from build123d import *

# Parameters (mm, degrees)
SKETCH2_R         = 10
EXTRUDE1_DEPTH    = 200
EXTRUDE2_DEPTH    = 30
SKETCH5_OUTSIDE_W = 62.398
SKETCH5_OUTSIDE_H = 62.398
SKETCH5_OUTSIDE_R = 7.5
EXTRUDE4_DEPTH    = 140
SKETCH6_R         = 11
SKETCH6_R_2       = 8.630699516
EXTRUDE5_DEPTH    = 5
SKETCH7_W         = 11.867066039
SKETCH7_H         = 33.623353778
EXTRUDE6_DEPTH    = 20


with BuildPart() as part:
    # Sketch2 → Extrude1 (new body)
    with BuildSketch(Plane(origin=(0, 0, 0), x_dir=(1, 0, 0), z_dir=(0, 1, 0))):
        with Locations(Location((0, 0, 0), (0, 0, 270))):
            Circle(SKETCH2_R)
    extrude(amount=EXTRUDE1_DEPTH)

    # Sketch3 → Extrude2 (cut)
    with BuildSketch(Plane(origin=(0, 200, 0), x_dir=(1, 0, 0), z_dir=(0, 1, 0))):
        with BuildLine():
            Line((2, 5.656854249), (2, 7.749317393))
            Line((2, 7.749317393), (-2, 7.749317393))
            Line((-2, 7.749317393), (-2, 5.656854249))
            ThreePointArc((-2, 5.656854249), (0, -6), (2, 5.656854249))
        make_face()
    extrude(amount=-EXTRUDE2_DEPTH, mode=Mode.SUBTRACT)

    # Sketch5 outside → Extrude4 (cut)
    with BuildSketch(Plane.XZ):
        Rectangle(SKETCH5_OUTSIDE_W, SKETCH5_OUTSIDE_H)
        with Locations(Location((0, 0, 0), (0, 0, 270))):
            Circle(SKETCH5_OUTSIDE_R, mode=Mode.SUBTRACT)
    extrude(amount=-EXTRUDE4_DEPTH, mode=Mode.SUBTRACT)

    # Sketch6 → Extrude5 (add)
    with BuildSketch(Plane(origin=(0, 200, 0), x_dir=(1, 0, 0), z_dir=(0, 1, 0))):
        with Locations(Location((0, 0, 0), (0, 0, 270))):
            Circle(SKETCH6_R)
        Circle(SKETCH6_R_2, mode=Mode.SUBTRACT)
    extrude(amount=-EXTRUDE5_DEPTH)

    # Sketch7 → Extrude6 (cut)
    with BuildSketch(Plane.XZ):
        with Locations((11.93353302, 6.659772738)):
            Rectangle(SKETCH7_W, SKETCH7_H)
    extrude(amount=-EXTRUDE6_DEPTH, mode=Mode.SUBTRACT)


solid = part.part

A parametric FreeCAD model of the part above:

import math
import FreeCAD as App
import Part
import Sketcher
from FreeCAD import Vector
Q = App.Units.Quantity


def add_polygon(sketch, points):
    """Adds a closed chain of lines whose ends are joined by coincident constraints."""
    first, n = sketch.GeometryCount, len(points)
    for a, b in zip(points, points[1:] + points[:1]):
        sketch.addGeometry(Part.LineSegment(App.Vector(*a, 0), App.Vector(*b, 0)), False)
    for i in range(n):
        sketch.addConstraint(Sketcher.Constraint("Coincident", first + i, 2, first + (i + 1) % n, 1))

doc = App.newDocument("Part")
params = doc.addObject("Spreadsheet::Sheet", "Params")
for row, (alias, value) in enumerate([
    ("sketch1_diameter", "20 mm"),
    ("pad1_length", "200 mm"),
    ("sketch2_radius", "6 mm"),
    ("sketch2_width", "4 mm"),
    ("pocket1_length", "30 mm"),
    ("sketch3_diameter", "15 mm"),
    ("pocket2_length", "140 mm"),
    ("sketch4_diameter", "22 mm"),
    ("pad2_length", "5 mm"),
    ("pocket3_length", "20 mm"),
], start=1):
    params.set(f"A{row}", alias)
    params.set(f"B{row}", "=" + value)
    params.setAlias(f"B{row}", alias)

body = doc.addObject("PartDesign::Body", "Body")

# Sketch on XZ plane
sketch1 = body.newObject("Sketcher::SketchObject", "Sketch")
sketch1.AttachmentSupport = (doc.getObject("XZ_Plane"), [""])
sketch1.MapMode = "FlatFace"
sketch1.addGeometry(Part.Circle(Vector(0, 0, 0), Vector(0, 0, 1), 10), False)
sketch1.addConstraint(Sketcher.Constraint("Coincident", 0, 3, -1, 1))
sketch1.addConstraint(Sketcher.Constraint("Diameter", 0, Q("20 mm")))
sketch1.setExpression("Constraints[1]", "Params.sketch1_diameter")
pad1 = body.newObject("PartDesign::Pad", "Pad")
pad1.Profile = sketch1
pad1.setExpression("Length", "Params.pad1_length")
pad1.Reversed = True

# Sketch on XZ plane
sketch2 = body.newObject("Sketcher::SketchObject", "Sketch001")
sketch2.AttachmentSupport = (doc.getObject("XZ_Plane"), [""])
sketch2.MapMode = "FlatFace"
sketch2.AttachmentOffset = App.Placement(Vector(0, 0, -200), App.Rotation())
sketch2.addGeometry(Part.LineSegment(Vector(2, -5.7, 0), Vector(2, -7.7, 0)), False)
sketch2.addGeometry(Part.LineSegment(Vector(2, -7.7, 0), Vector(-2, -7.7, 0)), False)
sketch2.addGeometry(Part.LineSegment(Vector(-2, -7.7, 0), Vector(-2, -5.7, 0)), False)
sketch2.addGeometry(Part.ArcOfCircle(Part.Circle(Vector(0, 0, 0), Vector(0, 0, 1), 6), math.radians(-71), math.radians(251)), False)
sketch2.addConstraint(Sketcher.Constraint("Coincident", 0, 2, 1, 1))
sketch2.addConstraint(Sketcher.Constraint("Coincident", 1, 2, 2, 1))
sketch2.addConstraint(Sketcher.Constraint("Coincident", 2, 2, 3, 2))
sketch2.addConstraint(Sketcher.Constraint("Coincident", 3, 1, 0, 1))
sketch2.addConstraint(Sketcher.Constraint("Vertical", 0))
sketch2.addConstraint(Sketcher.Constraint("Horizontal", 1))
sketch2.addConstraint(Sketcher.Constraint("Vertical", 2))
sketch2.addConstraint(Sketcher.Constraint("Coincident", 3, 3, -1, 1))
sketch2.addConstraint(Sketcher.Constraint("Horizontal", 2, 2, 3, 1))
sketch2.addConstraint(Sketcher.Constraint("Radius", 3, Q("6 mm")))
sketch2.addConstraint(Sketcher.Constraint("DistanceX", 1, 2, 1, 1, Q("4 mm")))
sketch2.addConstraint(Sketcher.Constraint("DistanceY", 0, 2, 0, 1, Q("2.092463 mm")))
sketch2.setExpression("Constraints[9]", "Params.sketch2_radius")
sketch2.setExpression("Constraints[10]", "Params.sketch2_width")
pocket1 = body.newObject("PartDesign::Pocket", "Pocket")
pocket1.Profile = sketch2
pocket1.setExpression("Length", "Params.pocket1_length")
pocket1.Reversed = True

# Sketch on XZ plane
sketch3 = body.newObject("Sketcher::SketchObject", "Sketch002")
sketch3.AttachmentSupport = (doc.getObject("XZ_Plane"), [""])
sketch3.MapMode = "FlatFace"
add_polygon(sketch3, [(-31, 31), (-31, -31), (31, -31), (31, 31)])  # lines 0-3
sketch3.addGeometry(Part.Circle(Vector(0, 0, 0), Vector(0, 0, 1), 8), False)  # 4
sketch3.addConstraint(Sketcher.Constraint("Vertical", 0))
sketch3.addConstraint(Sketcher.Constraint("Horizontal", 1))
sketch3.addConstraint(Sketcher.Constraint("Vertical", 2))
sketch3.addConstraint(Sketcher.Constraint("Horizontal", 3))
sketch3.addConstraint(Sketcher.Constraint("Coincident", 4, 3, -1, 1))
sketch3.addConstraint(Sketcher.Constraint("Symmetric", 0, 2, 2, 2, -1, 1))
sketch3.addConstraint(Sketcher.Constraint("Equal", 3, 0))
sketch3.addConstraint(Sketcher.Constraint("Diameter", 4, Q("15 mm")))
sketch3.addConstraint(Sketcher.Constraint("DistanceX", 1, 1, 1, 2, Q("62.398 mm")))
sketch3.setExpression("Constraints[11]", "Params.sketch3_diameter")
pocket2 = body.newObject("PartDesign::Pocket", "Pocket001")
pocket2.Profile = sketch3
pocket2.setExpression("Length", "Params.pocket2_length")

# Sketch on XZ plane
sketch4 = body.newObject("Sketcher::SketchObject", "Sketch003")
sketch4.AttachmentSupport = (doc.getObject("XZ_Plane"), [""])
sketch4.MapMode = "FlatFace"
sketch4.AttachmentOffset = App.Placement(Vector(0, 0, -200), App.Rotation())
sketch4.addGeometry(Part.Circle(Vector(0, 0, 0), Vector(0, 0, 1), 11), False)
sketch4.addGeometry(Part.Circle(Vector(0, 0, 0), Vector(0, 0, 1), 9), False)
sketch4.addConstraint(Sketcher.Constraint("Coincident", 0, 3, -1, 1))
sketch4.addConstraint(Sketcher.Constraint("Coincident", 1, 3, -1, 1))
sketch4.addConstraint(Sketcher.Constraint("Diameter", 0, Q("22 mm")))
sketch4.addConstraint(Sketcher.Constraint("Diameter", 1, Q("17.261399 mm")))
sketch4.setExpression("Constraints[2]", "Params.sketch4_diameter")
pad2 = body.newObject("PartDesign::Pad", "Pad001")
pad2.Profile = sketch4
pad2.setExpression("Length", "Params.pad2_length")

# Sketch on XZ plane
sketch5 = body.newObject("Sketcher::SketchObject", "Sketch004")
sketch5.AttachmentSupport = (doc.getObject("XZ_Plane"), [""])
sketch5.MapMode = "FlatFace"
add_polygon(sketch5, [(6, 23), (6, -10), (18, -10), (18, 23)])  # lines 0-3
sketch5.addConstraint(Sketcher.Constraint("Vertical", 0))
sketch5.addConstraint(Sketcher.Constraint("Horizontal", 1))
sketch5.addConstraint(Sketcher.Constraint("Vertical", 2))
sketch5.addConstraint(Sketcher.Constraint("Horizontal", 3))
sketch5.addConstraint(Sketcher.Constraint("DistanceX", -1, 1, 0, 2, Q("6 mm")))
sketch5.addConstraint(Sketcher.Constraint("DistanceX", 1, 1, 1, 2, Q("11.867066 mm")))
sketch5.addConstraint(Sketcher.Constraint("DistanceY", 0, 2, 0, 1, Q("33.623354 mm")))
sketch5.addConstraint(Sketcher.Constraint("DistanceY", -1, 1, 2, 2, Q("23.47145 mm")))
pocket3 = body.newObject("PartDesign::Pocket", "Pocket002")
pocket3.Profile = sketch5
pocket3.setExpression("Length", "Params.pocket3_length")

doc.recompute()
